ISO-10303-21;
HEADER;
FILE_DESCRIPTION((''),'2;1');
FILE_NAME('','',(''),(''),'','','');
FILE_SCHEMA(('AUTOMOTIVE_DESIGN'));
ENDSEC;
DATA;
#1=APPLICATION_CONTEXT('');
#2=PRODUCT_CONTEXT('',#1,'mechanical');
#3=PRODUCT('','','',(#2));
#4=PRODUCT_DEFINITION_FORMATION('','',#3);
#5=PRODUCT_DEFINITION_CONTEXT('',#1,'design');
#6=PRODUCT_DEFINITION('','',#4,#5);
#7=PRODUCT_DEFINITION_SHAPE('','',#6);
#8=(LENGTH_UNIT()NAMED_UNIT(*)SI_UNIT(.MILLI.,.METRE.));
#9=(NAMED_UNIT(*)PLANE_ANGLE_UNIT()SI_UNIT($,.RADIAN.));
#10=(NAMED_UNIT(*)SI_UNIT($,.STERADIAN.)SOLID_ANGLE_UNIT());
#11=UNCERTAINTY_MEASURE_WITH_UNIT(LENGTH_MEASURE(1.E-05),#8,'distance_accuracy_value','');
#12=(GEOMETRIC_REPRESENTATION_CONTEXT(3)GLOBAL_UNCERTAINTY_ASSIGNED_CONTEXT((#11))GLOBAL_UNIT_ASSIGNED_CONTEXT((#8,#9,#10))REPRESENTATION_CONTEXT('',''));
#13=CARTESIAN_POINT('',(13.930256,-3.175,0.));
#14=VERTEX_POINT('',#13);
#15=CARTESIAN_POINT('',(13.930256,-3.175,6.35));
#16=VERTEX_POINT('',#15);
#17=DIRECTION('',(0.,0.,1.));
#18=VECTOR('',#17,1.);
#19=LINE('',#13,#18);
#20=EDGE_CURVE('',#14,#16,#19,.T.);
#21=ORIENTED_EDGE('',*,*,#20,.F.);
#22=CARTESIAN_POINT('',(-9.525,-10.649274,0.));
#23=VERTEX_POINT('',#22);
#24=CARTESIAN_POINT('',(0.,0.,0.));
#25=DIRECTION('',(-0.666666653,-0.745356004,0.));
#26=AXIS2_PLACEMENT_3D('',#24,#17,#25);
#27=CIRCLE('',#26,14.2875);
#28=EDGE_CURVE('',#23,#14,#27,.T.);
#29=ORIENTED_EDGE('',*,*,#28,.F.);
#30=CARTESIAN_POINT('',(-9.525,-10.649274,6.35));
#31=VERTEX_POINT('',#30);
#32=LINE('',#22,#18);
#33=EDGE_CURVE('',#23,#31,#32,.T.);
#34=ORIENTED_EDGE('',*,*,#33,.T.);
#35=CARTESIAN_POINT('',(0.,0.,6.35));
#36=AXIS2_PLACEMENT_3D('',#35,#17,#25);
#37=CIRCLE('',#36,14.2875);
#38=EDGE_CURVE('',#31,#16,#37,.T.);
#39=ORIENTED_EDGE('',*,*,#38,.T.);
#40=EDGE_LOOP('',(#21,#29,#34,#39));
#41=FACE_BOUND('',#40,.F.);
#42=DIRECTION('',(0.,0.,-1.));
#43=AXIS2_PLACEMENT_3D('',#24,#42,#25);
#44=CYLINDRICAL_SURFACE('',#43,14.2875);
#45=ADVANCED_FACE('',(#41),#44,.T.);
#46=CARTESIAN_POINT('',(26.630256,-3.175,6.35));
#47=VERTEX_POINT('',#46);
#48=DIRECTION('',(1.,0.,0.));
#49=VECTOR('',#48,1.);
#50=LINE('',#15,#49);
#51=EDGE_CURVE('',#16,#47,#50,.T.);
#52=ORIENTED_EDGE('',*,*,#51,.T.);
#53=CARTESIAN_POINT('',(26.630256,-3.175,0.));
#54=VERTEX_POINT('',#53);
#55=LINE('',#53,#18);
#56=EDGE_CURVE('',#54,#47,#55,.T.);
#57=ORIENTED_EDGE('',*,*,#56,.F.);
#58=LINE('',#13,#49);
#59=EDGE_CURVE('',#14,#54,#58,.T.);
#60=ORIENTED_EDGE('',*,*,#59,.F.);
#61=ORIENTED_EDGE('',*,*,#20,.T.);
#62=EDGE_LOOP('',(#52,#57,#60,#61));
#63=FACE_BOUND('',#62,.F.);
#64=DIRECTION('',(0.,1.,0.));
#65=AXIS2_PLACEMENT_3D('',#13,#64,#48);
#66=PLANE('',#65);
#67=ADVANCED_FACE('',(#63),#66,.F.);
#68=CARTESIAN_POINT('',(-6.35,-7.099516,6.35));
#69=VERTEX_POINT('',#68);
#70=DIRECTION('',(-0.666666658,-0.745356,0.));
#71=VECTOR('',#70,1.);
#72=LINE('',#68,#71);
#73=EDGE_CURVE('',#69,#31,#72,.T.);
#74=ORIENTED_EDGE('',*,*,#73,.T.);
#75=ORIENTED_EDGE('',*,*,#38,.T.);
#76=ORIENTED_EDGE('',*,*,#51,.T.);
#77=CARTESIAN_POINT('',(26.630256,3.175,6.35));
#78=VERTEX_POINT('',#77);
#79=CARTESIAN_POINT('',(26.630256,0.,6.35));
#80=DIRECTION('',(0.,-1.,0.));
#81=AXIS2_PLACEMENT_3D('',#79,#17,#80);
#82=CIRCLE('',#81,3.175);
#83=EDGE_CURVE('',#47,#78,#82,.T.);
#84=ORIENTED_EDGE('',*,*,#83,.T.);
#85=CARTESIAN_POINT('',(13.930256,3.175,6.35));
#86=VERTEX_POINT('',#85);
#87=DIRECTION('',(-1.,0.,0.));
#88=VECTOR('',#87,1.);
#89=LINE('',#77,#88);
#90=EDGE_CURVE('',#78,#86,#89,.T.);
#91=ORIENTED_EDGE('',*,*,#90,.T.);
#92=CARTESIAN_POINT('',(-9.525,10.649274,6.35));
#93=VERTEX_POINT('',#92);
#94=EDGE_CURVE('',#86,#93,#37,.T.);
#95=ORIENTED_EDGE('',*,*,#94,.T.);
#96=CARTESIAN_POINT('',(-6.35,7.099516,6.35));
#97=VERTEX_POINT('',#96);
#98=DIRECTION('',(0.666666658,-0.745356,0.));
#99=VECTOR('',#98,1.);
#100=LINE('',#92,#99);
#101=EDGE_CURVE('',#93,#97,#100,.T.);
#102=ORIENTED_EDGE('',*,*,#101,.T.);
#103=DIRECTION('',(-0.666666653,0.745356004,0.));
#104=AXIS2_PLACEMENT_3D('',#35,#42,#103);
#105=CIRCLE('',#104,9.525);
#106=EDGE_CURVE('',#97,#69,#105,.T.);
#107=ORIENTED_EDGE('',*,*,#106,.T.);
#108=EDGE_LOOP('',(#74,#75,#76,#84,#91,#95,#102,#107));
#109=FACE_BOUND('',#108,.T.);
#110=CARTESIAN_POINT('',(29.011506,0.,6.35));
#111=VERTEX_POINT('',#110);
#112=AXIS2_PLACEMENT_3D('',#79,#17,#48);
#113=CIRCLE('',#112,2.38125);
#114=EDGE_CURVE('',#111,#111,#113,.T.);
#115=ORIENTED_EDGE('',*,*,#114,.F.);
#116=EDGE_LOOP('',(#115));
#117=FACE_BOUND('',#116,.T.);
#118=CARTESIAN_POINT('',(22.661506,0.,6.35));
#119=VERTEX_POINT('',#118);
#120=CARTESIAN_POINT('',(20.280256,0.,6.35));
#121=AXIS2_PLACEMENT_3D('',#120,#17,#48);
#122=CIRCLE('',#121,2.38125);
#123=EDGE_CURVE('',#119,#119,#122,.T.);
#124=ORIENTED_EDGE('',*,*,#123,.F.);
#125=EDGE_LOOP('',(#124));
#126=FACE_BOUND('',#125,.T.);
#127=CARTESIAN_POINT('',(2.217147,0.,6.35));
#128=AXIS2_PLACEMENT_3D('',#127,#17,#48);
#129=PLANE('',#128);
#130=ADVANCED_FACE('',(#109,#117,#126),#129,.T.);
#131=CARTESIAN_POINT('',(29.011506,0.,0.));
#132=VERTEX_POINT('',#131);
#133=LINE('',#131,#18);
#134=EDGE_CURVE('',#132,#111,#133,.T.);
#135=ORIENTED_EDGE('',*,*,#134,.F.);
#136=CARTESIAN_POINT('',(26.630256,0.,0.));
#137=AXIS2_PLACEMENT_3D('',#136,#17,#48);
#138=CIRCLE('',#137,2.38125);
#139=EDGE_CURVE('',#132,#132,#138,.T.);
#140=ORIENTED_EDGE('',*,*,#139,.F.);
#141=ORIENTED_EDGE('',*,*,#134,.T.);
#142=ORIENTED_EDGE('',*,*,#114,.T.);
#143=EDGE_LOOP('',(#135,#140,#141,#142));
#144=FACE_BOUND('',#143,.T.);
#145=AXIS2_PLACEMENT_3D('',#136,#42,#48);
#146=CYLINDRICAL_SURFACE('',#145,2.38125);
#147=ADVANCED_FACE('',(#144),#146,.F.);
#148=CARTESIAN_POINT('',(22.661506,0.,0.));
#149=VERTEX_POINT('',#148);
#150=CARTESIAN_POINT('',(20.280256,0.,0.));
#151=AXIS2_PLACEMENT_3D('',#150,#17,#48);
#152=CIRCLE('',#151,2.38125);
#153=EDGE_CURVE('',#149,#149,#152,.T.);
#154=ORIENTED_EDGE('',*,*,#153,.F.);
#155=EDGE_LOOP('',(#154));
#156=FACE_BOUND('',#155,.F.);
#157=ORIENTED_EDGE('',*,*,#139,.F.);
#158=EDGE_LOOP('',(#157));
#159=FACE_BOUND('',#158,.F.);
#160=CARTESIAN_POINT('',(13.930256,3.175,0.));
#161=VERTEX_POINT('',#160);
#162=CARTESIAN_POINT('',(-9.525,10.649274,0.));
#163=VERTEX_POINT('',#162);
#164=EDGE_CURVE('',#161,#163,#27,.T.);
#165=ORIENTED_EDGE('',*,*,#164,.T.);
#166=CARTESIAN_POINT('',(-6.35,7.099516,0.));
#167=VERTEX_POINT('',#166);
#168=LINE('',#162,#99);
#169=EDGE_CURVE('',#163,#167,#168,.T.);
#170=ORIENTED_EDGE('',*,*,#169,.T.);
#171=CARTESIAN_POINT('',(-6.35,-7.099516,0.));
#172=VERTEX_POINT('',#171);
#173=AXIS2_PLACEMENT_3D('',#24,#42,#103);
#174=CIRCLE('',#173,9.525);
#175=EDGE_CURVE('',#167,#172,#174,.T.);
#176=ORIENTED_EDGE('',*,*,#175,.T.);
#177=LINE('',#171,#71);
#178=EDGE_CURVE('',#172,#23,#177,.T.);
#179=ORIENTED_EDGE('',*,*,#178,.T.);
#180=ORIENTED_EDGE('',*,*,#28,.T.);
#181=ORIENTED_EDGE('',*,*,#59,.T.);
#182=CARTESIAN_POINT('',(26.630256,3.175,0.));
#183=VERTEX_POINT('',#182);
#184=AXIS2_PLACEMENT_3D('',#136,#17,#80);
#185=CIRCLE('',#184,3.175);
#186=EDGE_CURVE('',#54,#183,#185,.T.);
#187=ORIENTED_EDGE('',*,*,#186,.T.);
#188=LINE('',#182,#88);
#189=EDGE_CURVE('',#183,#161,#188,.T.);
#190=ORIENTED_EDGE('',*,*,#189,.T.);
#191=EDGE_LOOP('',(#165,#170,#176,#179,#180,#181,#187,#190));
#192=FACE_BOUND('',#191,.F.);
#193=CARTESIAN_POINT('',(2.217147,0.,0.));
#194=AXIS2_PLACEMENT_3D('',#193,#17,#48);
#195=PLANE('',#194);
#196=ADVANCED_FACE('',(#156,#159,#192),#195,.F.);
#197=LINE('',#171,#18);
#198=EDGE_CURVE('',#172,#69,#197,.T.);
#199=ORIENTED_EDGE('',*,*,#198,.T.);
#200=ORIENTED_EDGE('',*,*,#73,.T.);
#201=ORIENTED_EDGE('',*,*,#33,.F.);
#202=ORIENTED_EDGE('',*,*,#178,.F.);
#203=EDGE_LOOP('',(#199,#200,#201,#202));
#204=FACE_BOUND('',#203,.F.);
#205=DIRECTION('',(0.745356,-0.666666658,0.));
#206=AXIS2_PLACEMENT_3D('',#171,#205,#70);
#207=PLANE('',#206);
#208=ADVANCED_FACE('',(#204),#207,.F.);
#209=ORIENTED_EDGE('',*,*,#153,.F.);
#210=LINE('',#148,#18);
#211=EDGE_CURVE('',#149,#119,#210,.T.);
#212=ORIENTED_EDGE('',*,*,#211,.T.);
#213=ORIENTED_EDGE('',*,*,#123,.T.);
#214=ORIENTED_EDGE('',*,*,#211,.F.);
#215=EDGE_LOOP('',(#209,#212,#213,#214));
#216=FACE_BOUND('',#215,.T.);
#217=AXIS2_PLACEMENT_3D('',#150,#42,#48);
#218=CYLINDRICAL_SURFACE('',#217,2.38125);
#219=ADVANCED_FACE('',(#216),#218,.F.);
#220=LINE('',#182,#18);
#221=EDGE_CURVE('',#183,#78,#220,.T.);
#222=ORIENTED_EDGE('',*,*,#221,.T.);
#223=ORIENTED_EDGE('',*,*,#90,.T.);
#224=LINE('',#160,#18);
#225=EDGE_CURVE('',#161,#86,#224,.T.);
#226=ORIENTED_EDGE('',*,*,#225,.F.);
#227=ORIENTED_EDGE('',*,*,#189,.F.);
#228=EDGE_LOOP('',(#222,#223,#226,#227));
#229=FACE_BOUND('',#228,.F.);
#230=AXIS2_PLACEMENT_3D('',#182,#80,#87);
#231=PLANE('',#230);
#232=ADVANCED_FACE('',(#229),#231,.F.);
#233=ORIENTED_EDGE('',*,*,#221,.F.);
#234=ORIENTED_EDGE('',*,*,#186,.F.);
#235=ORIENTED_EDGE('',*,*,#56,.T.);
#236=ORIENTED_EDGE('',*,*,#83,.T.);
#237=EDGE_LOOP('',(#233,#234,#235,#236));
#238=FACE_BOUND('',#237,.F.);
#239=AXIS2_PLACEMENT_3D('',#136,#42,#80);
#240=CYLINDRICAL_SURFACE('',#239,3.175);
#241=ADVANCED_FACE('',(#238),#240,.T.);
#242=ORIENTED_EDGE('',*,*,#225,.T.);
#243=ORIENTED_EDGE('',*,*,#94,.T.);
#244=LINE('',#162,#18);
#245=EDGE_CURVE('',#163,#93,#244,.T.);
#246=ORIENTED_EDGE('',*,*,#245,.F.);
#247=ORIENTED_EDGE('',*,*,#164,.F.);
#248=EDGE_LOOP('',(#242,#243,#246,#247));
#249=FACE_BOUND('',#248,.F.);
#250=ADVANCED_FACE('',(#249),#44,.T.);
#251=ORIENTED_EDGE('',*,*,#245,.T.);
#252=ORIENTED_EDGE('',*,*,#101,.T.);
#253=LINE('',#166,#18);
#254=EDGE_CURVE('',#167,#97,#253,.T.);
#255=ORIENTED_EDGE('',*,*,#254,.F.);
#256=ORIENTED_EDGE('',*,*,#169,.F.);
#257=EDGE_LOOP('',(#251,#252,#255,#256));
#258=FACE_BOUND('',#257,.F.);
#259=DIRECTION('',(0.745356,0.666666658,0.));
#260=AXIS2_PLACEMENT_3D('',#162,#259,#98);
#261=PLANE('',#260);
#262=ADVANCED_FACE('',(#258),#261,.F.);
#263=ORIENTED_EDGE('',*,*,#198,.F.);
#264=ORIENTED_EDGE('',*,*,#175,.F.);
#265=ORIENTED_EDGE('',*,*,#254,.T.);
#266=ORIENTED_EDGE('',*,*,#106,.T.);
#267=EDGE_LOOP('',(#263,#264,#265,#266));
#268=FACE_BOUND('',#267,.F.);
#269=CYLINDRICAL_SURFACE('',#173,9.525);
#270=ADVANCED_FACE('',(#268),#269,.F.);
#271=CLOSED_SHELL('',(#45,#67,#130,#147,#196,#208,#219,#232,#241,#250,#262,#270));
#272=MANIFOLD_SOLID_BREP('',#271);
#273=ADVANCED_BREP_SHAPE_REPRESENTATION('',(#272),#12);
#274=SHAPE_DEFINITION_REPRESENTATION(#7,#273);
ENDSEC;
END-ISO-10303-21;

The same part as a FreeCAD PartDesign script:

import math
import FreeCAD as App
import Part
import Sketcher
Q = App.Units.Quantity

doc = App.newDocument("Part")
body = doc.addObject("PartDesign::Body", "Body")

# Sketch on XY plane
sketch1 = doc.addObject("Sketcher::SketchObject", "Sketch")
body.addObject(sketch1)
sketch1.AttachmentSupport = (doc.XY_Plane, [""])
sketch1.MapMode = "FlatFace"
sketch1.addGeometry(Part.LineSegment(App.Vector(-9.5, 10.6, 0), App.Vector(-6.3, 7.1, 0)), False)
sketch1.addGeometry(Part.ArcOfCircle(Part.Circle(App.Vector(0, 0, 0), App.Vector(0, 0, 1), 9.5), math.radians(-132), math.radians(132)), False)
sketch1.addGeometry(Part.LineSegment(App.Vector(-6.3, -7.1, 0), App.Vector(-9.5, -10.6, 0)), False)
sketch1.addGeometry(Part.ArcOfCircle(Part.Circle(App.Vector(0, 0, 0), App.Vector(0, 0, 1), 14.3), math.radians(-132), math.radians(132)), False)
sketch1.addConstraint(Sketcher.Constraint("Coincident", 0, 2, 1, 2))
sketch1.addConstraint(Sketcher.Constraint("Coincident", 1, 1, 2, 1))
sketch1.addConstraint(Sketcher.Constraint("Coincident", 2, 2, 3, 1))
sketch1.addConstraint(Sketcher.Constraint("Coincident", 3, 2, 0, 1))
sketch1.addConstraint(Sketcher.Constraint("Coincident", 1, 3, -1, 1))
sketch1.addConstraint(Sketcher.Constraint("Coincident", 3, 3, -1, 1))
sketch1.addConstraint(Sketcher.Constraint("Vertical", 0, 2, 1, 1))
sketch1.addConstraint(Sketcher.Constraint("Vertical", 2, 2, 3, 2))
sketch1.addConstraint(Sketcher.Constraint("Radius", 1, Q("0.375 in")))
sketch1.addConstraint(Sketcher.Constraint("Radius", 3, Q("0.5625 in")))
sketch1.addConstraint(Sketcher.Constraint("DistanceX", 0, 2, -1, 1, Q("0.25 in")))
sketch1.addConstraint(Sketcher.Constraint("DistanceX", 2, 2, -1, 1, Q("0.375 in")))
pad1 = doc.addObject("PartDesign::Pad", "Pad")
body.addObject(pad1)
pad1.Profile = sketch1
pad1.Length = Q("0.25 in")

# Sketch on XY plane
sketch2 = doc.addObject("Sketcher::SketchObject", "Sketch001")
body.addObject(sketch2)
sketch2.AttachmentSupport = (doc.XY_Plane, [""])
sketch2.MapMode = "FlatFace"
sketch2.addGeometry(Part.LineSegment(App.Vector(26.6, 3.2, 0), App.Vector(13.9, 3.2, 0)), False)
sketch2.addGeometry(Part.ArcOfCircle(Part.Circle(App.Vector(0, 0, 0), App.Vector(0, 0, 1), 14.3), math.radians(-13), math.radians(13)), False)
sketch2.addGeometry(Part.LineSegment(App.Vector(13.9, -3.2, 0), App.Vector(26.6, -3.2, 0)), False)
sketch2.addGeometry(Part.ArcOfCircle(Part.Circle(App.Vector(26.6, 0, 0), App.Vector(0, 0, 1), 3.2), math.radians(-90), math.radians(90)), False)
sketch2.addGeometry(Part.Circle(App.Vector(20.3, 0, 0), App.Vector(0, 0, 1), 2.4), False)
sketch2.addGeometry(Part.Circle(App.Vector(26.6, 0, 0), App.Vector(0, 0, 1), 2.4), False)
sketch2.addConstraint(Sketcher.Constraint("Coincident", 0, 2, 1, 2))
sketch2.addConstraint(Sketcher.Constraint("Coincident", 1, 1, 2, 1))
sketch2.addConstraint(Sketcher.Constraint("Tangent", 2, 2, 3, 1))
sketch2.addConstraint(Sketcher.Constraint("Tangent", 3, 2, 0, 1))
sketch2.addConstraint(Sketcher.Constraint("Horizontal", 0))
sketch2.addConstraint(Sketcher.Constraint("Horizontal", 2))
sketch2.addConstraint(Sketcher.Constraint("Coincident", 1, 3, -1, 1))
sketch2.addConstraint(Sketcher.Constraint("Coincident", 5, 3, 3, 3))
sketch2.addConstraint(Sketcher.Constraint("Equal", 4, 5))
sketch2.addConstraint(Sketcher.Constraint("PointOnObject", 3, 3, -1))
sketch2.addConstraint(Sketcher.Constraint("PointOnObject", 4, 3, -1))
sketch2.addConstraint(Sketcher.Constraint("Diameter", 4, Q("0.1875 in")))
sketch2.addConstraint(Sketcher.Constraint("DistanceX", 0, 2, 0, 1, Q("0.5 in")))
sketch2.addConstraint(Sketcher.Constraint("Radius", 1, Q("0.5625001 in")))
sketch2.addConstraint(Sketcher.Constraint("Radius", 3, Q("0.125 in")))
sketch2.addConstraint(Sketcher.Constraint("DistanceX", 4, 3, 3, 3, Q("0.25 in")))
pad2 = doc.addObject("PartDesign::Pad", "Pad001")
body.addObject(pad2)
pad2.Profile = sketch2
pad2.Length = Q("0.25 in")

doc.recompute()
